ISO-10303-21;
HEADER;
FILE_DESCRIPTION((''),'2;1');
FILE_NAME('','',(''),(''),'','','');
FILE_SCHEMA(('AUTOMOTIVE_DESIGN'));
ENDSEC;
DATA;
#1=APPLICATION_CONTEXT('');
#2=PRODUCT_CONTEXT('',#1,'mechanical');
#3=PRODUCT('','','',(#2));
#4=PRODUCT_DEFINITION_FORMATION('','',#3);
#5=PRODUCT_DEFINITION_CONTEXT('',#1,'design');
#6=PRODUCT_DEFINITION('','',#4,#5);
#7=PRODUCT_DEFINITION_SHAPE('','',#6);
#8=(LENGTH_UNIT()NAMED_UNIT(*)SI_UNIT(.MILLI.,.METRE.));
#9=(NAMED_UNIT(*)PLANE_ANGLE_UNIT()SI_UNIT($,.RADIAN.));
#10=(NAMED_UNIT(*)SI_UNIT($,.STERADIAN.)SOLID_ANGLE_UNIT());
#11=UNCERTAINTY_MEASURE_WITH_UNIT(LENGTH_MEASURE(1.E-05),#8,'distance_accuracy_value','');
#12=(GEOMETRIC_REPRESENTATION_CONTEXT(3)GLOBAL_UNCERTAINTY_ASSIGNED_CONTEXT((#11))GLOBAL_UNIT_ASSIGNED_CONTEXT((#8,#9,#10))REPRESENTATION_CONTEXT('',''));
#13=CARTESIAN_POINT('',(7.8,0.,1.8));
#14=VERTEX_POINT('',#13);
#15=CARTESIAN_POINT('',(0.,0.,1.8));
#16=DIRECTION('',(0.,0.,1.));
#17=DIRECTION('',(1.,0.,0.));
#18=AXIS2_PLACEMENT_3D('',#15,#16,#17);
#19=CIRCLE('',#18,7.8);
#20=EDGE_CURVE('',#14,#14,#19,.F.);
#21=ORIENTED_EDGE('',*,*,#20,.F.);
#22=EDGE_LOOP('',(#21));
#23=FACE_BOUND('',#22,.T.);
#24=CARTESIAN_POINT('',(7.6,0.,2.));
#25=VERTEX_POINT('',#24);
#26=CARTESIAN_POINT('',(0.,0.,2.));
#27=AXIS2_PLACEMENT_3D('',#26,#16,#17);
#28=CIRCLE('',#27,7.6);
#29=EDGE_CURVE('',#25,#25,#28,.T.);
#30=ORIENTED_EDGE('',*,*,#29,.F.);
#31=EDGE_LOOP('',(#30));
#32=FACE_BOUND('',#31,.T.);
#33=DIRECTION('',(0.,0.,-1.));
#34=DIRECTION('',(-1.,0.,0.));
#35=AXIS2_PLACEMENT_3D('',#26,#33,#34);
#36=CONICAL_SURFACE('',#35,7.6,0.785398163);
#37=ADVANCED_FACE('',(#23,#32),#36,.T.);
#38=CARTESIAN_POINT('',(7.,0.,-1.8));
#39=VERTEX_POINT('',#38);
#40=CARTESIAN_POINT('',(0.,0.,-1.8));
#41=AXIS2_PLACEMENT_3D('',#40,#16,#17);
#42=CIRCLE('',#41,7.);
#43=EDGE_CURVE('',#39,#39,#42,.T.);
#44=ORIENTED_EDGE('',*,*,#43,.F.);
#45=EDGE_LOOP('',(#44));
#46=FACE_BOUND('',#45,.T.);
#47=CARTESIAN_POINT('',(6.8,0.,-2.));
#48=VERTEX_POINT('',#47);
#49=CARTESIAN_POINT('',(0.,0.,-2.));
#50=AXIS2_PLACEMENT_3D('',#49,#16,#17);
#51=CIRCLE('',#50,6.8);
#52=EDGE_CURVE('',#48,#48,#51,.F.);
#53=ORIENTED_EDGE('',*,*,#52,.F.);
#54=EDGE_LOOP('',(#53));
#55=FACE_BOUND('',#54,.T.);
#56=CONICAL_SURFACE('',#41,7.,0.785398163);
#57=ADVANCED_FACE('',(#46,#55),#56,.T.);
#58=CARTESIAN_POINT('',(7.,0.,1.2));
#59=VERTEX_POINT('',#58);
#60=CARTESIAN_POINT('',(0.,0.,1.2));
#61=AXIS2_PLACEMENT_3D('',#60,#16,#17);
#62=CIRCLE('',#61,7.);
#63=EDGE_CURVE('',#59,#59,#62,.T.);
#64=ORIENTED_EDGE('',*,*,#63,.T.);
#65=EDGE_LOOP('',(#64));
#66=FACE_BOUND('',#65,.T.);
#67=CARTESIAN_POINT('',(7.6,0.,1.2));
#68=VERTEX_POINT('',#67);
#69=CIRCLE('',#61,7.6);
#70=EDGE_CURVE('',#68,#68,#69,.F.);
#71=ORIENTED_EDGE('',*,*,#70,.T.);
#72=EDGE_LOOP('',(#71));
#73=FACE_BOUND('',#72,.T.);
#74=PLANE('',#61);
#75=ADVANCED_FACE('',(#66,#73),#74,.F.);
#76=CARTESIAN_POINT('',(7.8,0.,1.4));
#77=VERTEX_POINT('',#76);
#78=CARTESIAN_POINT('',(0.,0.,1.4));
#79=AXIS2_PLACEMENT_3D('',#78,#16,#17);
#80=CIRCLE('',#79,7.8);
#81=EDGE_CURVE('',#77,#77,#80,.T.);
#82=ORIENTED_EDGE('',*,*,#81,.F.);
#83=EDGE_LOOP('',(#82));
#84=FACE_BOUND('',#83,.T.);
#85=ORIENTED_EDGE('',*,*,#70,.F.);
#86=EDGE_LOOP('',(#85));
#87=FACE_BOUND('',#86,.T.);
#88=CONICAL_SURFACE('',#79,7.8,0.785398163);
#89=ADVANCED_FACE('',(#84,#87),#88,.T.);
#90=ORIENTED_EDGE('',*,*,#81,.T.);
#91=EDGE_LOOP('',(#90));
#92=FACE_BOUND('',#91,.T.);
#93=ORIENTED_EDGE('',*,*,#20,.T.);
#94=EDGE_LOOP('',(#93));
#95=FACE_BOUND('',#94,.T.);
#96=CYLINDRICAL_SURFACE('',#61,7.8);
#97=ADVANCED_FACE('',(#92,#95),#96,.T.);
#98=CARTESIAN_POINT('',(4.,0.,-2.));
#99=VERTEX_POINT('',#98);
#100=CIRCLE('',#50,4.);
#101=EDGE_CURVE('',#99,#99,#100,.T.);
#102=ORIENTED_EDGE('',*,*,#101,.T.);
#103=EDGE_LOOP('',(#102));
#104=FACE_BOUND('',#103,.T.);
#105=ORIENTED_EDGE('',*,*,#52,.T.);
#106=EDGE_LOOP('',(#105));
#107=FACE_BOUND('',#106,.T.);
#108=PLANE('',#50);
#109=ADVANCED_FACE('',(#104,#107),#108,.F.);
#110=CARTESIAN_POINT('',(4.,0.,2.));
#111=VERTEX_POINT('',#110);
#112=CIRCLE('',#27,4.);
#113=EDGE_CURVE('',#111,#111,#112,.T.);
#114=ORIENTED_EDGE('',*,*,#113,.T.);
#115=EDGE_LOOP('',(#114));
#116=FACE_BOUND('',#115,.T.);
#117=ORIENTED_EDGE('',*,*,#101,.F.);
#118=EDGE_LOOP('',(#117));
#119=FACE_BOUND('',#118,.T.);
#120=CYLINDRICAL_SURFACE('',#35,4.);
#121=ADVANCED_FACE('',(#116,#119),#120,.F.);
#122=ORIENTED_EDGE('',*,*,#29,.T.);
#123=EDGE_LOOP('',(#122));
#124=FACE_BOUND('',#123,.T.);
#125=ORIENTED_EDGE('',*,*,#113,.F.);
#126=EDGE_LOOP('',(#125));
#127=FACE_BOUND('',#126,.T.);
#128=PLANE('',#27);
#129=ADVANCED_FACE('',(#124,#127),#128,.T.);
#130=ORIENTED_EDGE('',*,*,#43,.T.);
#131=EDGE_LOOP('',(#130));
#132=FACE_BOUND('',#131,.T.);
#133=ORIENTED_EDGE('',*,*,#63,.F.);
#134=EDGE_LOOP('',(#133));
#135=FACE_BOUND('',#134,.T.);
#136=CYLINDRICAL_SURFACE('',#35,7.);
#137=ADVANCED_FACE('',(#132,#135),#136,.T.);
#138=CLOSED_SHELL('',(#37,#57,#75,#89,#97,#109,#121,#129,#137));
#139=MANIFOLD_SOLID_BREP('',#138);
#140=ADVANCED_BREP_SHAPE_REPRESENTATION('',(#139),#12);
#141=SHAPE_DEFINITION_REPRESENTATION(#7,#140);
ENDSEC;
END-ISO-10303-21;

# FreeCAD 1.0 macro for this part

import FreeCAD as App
import Part
import Sketcher
from FreeCAD import Vector


def edges_at(feature, points):
    """Names of the edges that pass closest to the given points."""
    edges = feature.Shape.Edges
    near = lambda p: min(range(len(edges)), key=lambda i: edges[i].distToShape(Part.Vertex(*p))[0])
    return sorted({f"Edge{near(p) + 1}" for p in points})

doc = App.newDocument("Part")
body = doc.addObject("PartDesign::Body", "Body")

# Sketch on XY plane
sketch1 = doc.addObject("Sketcher::SketchObject", "Sketch")
body.addObject(sketch1)
sketch1.AttachmentSupport = (doc.XY_Plane, [""])
sketch1.MapMode = "FlatFace"
sketch1.addGeometry(Part.Circle(Vector(0, 0, 0), Vector(0, 0, 1), 7), False)
sketch1.addGeometry(Part.Circle(Vector(0, 0, 0), Vector(0, 0, 1), 4), False)
sketch1.addConstraint(Sketcher.Constraint("Coincident", 0, 3, -1, 1))
sketch1.addConstraint(Sketcher.Constraint("Coincident", 1, 3, -1, 1))
sketch1.addConstraint(Sketcher.Constraint("Diameter", 0, 14.0))
sketch1.addConstraint(Sketcher.Constraint("Diameter", 1, 8.0))
pad1 = doc.addObject("PartDesign::Pad", "Pad")
body.addObject(pad1)
pad1.Profile = sketch1
pad1.Length = 4
pad1.Midplane = True

# Sketch on XY plane
sketch2 = doc.addObject("Sketcher::SketchObject", "Sketch001")
body.addObject(sketch2)
sketch2.AttachmentSupport = (doc.XY_Plane, [""])
sketch2.MapMode = "FlatFace"
sketch2.AttachmentOffset = App.Placement(Vector(0, 0, 2), App.Rotation())
sketch2.addGeometry(Part.Circle(Vector(0, 0, 0), Vector(0, 0, 1), 7.8), False)
sketch2.addGeometry(Part.Circle(Vector(0, 0, 0), Vector(0, 0, 1), 4), False)
sketch2.addConstraint(Sketcher.Constraint("Coincident", 0, 3, -1, 1))
sketch2.addConstraint(Sketcher.Constraint("Coincident", 1, 3, -1, 1))
sketch2.addConstraint(Sketcher.Constraint("Diameter", 1, 8.0))
sketch2.addConstraint(Sketcher.Constraint("Diameter", 0, 15.6))
pad2 = doc.addObject("PartDesign::Pad", "Pad001")
body.addObject(pad2)
pad2.Profile = sketch2
pad2.Length = 0.8
pad2.Reversed = True
doc.recompute()

chamfer = doc.addObject("PartDesign::Chamfer", "Chamfer")
body.addObject(chamfer)
chamfer.Base = (pad2, edges_at(pad2, [(-7.8, 0, 2), (-7.8, 0, 1.2), (-7, 0, -2)]))
chamfer.Size = 0.2

doc.recompute()
